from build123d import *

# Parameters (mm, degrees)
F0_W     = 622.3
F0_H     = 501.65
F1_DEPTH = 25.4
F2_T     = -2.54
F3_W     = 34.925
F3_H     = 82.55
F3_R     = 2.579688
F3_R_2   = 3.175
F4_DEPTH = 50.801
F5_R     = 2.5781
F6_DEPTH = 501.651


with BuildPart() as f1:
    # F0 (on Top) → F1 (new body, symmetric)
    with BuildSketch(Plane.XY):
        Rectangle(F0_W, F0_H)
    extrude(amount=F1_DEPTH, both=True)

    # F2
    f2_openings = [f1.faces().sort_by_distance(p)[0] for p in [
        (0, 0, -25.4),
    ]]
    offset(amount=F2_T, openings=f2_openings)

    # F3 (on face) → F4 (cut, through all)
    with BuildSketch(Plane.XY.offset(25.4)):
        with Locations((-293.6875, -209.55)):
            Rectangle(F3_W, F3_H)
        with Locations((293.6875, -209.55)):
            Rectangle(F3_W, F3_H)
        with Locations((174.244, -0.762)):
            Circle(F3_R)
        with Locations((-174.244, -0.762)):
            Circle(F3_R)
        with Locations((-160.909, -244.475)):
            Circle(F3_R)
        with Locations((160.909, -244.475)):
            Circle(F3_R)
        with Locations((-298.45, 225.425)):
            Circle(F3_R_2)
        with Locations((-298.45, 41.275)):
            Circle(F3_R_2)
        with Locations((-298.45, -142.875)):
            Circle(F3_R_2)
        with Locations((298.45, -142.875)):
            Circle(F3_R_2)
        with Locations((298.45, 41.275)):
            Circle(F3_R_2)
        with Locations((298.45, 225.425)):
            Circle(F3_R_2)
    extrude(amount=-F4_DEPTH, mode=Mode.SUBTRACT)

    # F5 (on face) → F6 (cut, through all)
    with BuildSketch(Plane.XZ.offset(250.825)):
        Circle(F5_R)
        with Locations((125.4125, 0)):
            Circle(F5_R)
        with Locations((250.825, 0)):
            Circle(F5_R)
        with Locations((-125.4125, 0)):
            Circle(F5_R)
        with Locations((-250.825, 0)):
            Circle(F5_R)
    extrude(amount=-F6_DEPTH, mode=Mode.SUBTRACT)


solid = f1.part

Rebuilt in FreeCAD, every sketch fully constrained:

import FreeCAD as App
import Part
import Sketcher
from FreeCAD import Vector
Q = App.Units.Quantity


def faces_at(feature, points):
    """Names of the faces that lie closest to the given points."""
    faces = feature.Shape.Faces
    near = lambda p: min(range(len(faces)), key=lambda i: faces[i].distToShape(Part.Vertex(*p))[0])
    return sorted({f"Face{near(p) + 1}" for p in points})

doc = App.newDocument("Part")
params = doc.addObject("Spreadsheet::Sheet", "Params")
for row, (alias, value) in enumerate([
    ("sketch1_width", "24.5 in"),
    ("sketch1_height", "19.75 in"),
    ("pad1_length", "2 in"),
    ("thickness_wall", "0.1 in"),
    ("sketch2_diameter", "0.25 in"),
    ("sketch2_diameter2", "0.203125 in"),
    ("sketch2_height", "3.25 in"),
    ("sketch2_width", "1.375 in"),
    ("sketch3_diameter", "0.203 in"),
], start=1):
    params.set(f"A{row}", alias)
    params.set(f"B{row}", "=" + value)
    params.setAlias(f"B{row}", alias)

body = doc.addObject("PartDesign::Body", "Body")

# Sketch on XY plane
sketch1 = body.newObject("Sketcher::SketchObject", "Sketch")
sketch1.AttachmentSupport = (doc.getObject("XY_Plane"), [""])
sketch1.MapMode = "FlatFace"
sketch1.addGeometry([
    Part.LineSegment(Vector(-311, 251, 0), Vector(-311, -251, 0)),
    Part.LineSegment(Vector(-311, -251, 0), Vector(311, -251, 0)),
    Part.LineSegment(Vector(311, -251, 0), Vector(311, 251, 0)),
    Part.LineSegment(Vector(311, 251, 0), Vector(-311, 251, 0)),
], False)
sketch1.addConstraint([
    Sketcher.Constraint("Coincident", 0, 2, 1, 1),
    Sketcher.Constraint("Coincident", 1, 2, 2, 1),
    Sketcher.Constraint("Coincident", 2, 2, 3, 1),
    Sketcher.Constraint("Coincident", 3, 2, 0, 1),
    Sketcher.Constraint("Vertical", 0),
    Sketcher.Constraint("Horizontal", 1),
    Sketcher.Constraint("Vertical", 2),
    Sketcher.Constraint("Horizontal", 3),
    Sketcher.Constraint("Symmetric", 0, 2, 2, 2, -1, 1),
    Sketcher.Constraint("DistanceX", 1, 1, 1, 2, Q("24.5 in")),
    Sketcher.Constraint("DistanceY", 0, 2, 0, 1, Q("19.75 in")),
])
sketch1.setExpression("Constraints[9]", "Params.sketch1_width")
sketch1.setExpression("Constraints[10]", "Params.sketch1_height")
pad1 = body.newObject("PartDesign::Pad", "Pad")
pad1.Profile = sketch1
pad1.setExpression("Length", "Params.pad1_length")
pad1.Midplane = True
doc.recompute()

thickness = body.newObject("PartDesign::Thickness", "Thickness")
thickness.Base = (pad1, faces_at(pad1, [(0, 0, -25.4)]))
thickness.setExpression("Value", "Params.thickness_wall")
thickness.Reversed = True
thickness.Join = "Arc"

# Sketch on XY plane
sketch2 = body.newObject("Sketcher::SketchObject", "Sketch001")
sketch2.AttachmentSupport = (doc.getObject("XY_Plane"), [""])
sketch2.MapMode = "FlatFace"
sketch2.AttachmentOffset = App.Placement(Vector(0, 0, 1 * 25.4), App.Rotation())
sketch2.addGeometry([
    Part.LineSegment(Vector(-311.1, -168.3, 0), Vector(-311.1, -250.8, 0)),  # 0
    Part.LineSegment(Vector(-311.1, -250.8, 0), Vector(-276.2, -250.8, 0)),  # 1
    Part.LineSegment(Vector(-276.2, -250.8, 0), Vector(-276.2, -168.3, 0)),  # 2
    Part.LineSegment(Vector(-276.2, -168.3, 0), Vector(-311.1, -168.3, 0)),  # 3
    Part.LineSegment(Vector(276.2, -168.3, 0), Vector(276.2, -250.8, 0)),  # 4
    Part.LineSegment(Vector(276.2, -250.8, 0), Vector(311.1, -250.8, 0)),  # 5
    Part.LineSegment(Vector(311.1, -250.8, 0), Vector(311.1, -168.3, 0)),  # 6
    Part.LineSegment(Vector(311.1, -168.3, 0), Vector(276.2, -168.3, 0)),  # 7
    Part.Circle(Vector(174.2, -0.8, 0), Vector(0, 0, 1), 2.6),  # 8
    Part.Circle(Vector(-174.2, -0.8, 0), Vector(0, 0, 1), 2.6),  # 9
    Part.Circle(Vector(-160.9, -244.5, 0), Vector(0, 0, 1), 2.6),  # 10
    Part.Circle(Vector(160.9, -244.5, 0), Vector(0, 0, 1), 2.6),  # 11
    Part.Circle(Vector(-298.4, 225.4, 0), Vector(0, 0, 1), 3.2),  # 12
    Part.Circle(Vector(-298.4, 41.3, 0), Vector(0, 0, 1), 3.2),  # 13
    Part.Circle(Vector(-298.4, -142.9, 0), Vector(0, 0, 1), 3.2),  # 14
    Part.Circle(Vector(298.4, -142.9, 0), Vector(0, 0, 1), 3.2),  # 15
    Part.Circle(Vector(298.4, 41.3, 0), Vector(0, 0, 1), 3.2),  # 16
    Part.Circle(Vector(298.4, 225.4, 0), Vector(0, 0, 1), 3.2),  # 17
], False)
sketch2.addConstraint([
    Sketcher.Constraint("Coincident", 0, 2, 1, 1),
    Sketcher.Constraint("Coincident", 1, 2, 2, 1),
    Sketcher.Constraint("Coincident", 2, 2, 3, 1),
    Sketcher.Constraint("Coincident", 3, 2, 0, 1),
    Sketcher.Constraint("Coincident", 4, 2, 5, 1),
    Sketcher.Constraint("Coincident", 5, 2, 6, 1),
    Sketcher.Constraint("Coincident", 6, 2, 7, 1),
    Sketcher.Constraint("Coincident", 7, 2, 4, 1),
    Sketcher.Constraint("Vertical", 0),
    Sketcher.Constraint("Horizontal", 1),
    Sketcher.Constraint("Vertical", 2),
    Sketcher.Constraint("Horizontal", 3),
    Sketcher.Constraint("Vertical", 4),
    Sketcher.Constraint("Horizontal", 5),
    Sketcher.Constraint("Vertical", 6),
    Sketcher.Constraint("Horizontal", 7),
    Sketcher.Constraint("Equal", 8, 9),
    Sketcher.Constraint("Equal", 9, 10),
    Sketcher.Constraint("Equal", 10, 11),
    Sketcher.Constraint("Equal", 12, 13),
    Sketcher.Constraint("Equal", 13, 14),
    Sketcher.Constraint("Equal", 14, 15),
    Sketcher.Constraint("Equal", 15, 16),
    Sketcher.Constraint("Equal", 16, 17),
    Sketcher.Constraint("Symmetric", 8, 3, 9, 3, -2),
    Sketcher.Constraint("Symmetric", 10, 3, 11, 3, -2),
    Sketcher.Constraint("Symmetric", 14, 3, 15, 3, -2),
    Sketcher.Constraint("Symmetric", 13, 3, 16, 3, -2),
    Sketcher.Constraint("Symmetric", 12, 3, 17, 3, -2),
    Sketcher.Constraint("Symmetric", 1, 2, 4, 2, -2),
    Sketcher.Constraint("Symmetric", 3, 2, 6, 2, -2),
    Sketcher.Constraint("Vertical", 12, 3, 13, 3),
    Sketcher.Constraint("Vertical", 13, 3, 14, 3),
    Sketcher.Constraint("Diameter", 12, Q("0.25 in")),
    Sketcher.Constraint("Diameter", 8, Q("0.203125 in")),
    Sketcher.Constraint("DistanceY", 10, 3, 14, 3, Q("4 in")),
    Sketcher.Constraint("DistanceY", 2, 2, 14, 3, Q("1 in")),
    Sketcher.Constraint("DistanceY", 0, 2, 0, 1, Q("3.25 in")),
    Sketcher.Constraint("DistanceY", 10, 3, 12, 3, Q("18.5 in")),
    Sketcher.Constraint("DistanceX", 14, 3, 15, 3, Q("23.5 in")),
    Sketcher.Constraint("DistanceX", 0, 2, 14, 3, Q("0.5 in")),
    Sketcher.Constraint("DistanceY", 0, 2, 13, 3, Q("11.5 in")),
    Sketcher.Constraint("DistanceX", 1, 1, 1, 2, Q("1.375 in")),
    Sketcher.Constraint("DistanceX", -1, 1, 8, 3, Q("6.86 in")),
    Sketcher.Constraint("DistanceY", 8, 3, -1, 1, Q("0.03 in")),
    Sketcher.Constraint("DistanceX", 10, 3, 11, 3, Q("12.67 in")),
    Sketcher.Constraint("DistanceY", 10, 3, -1, 1, Q("9.625 in")),
])
sketch2.setExpression("Constraints[33]", "Params.sketch2_diameter")
sketch2.setExpression("Constraints[34]", "Params.sketch2_diameter2")
sketch2.setExpression("Constraints[37]", "Params.sketch2_height")
sketch2.setExpression("Constraints[42]", "Params.sketch2_width")
pocket1 = body.newObject("PartDesign::Pocket", "Pocket")
pocket1.Profile = sketch2
pocket1.Type = "ThroughAll"

# Sketch on XZ plane
sketch3 = body.newObject("Sketcher::SketchObject", "Sketch002")
sketch3.AttachmentSupport = (doc.getObject("XZ_Plane"), [""])
sketch3.MapMode = "FlatFace"
sketch3.AttachmentOffset = App.Placement(Vector(0, 0, 9.875 * 25.4), App.Rotation())
sketch3.addGeometry([
    Part.Circle(Vector(0, 0, 0), Vector(0, 0, 1), 2.6),  # 0
    Part.Circle(Vector(125.4, 0, 0), Vector(0, 0, 1), 2.6),  # 1
    Part.Circle(Vector(250.8, 0, 0), Vector(0, 0, 1), 2.6),  # 2
    Part.Circle(Vector(-125.4, 0, 0), Vector(0, 0, 1), 2.6),  # 3
    Part.Circle(Vector(-250.8, 0, 0), Vector(0, 0, 1), 2.6),  # 4
], False)
sketch3.addConstraint([
    Sketcher.Constraint("Coincident", 0, 3, -1, 1),
    Sketcher.Constraint("Equal", 0, 1),
    Sketcher.Constraint("Equal", 1, 2),
    Sketcher.Constraint("Equal", 2, 3),
    Sketcher.Constraint("Equal", 3, 4),
    Sketcher.Constraint("Symmetric", 1, 3, 3, 3, -1, 1),
    Sketcher.Constraint("Symmetric", 2, 3, 4, 3, -1, 1),
    Sketcher.Constraint("PointOnObject", 1, 3, -1),
    Sketcher.Constraint("PointOnObject", 2, 3, -1),
    Sketcher.Constraint("Diameter", 0, Q("0.203 in")),
    Sketcher.Constraint("DistanceX", 4, 3, 2, 3, Q("19.75 in")),
    Sketcher.Constraint("DistanceX", -1, 1, 1, 3, Q("4.9375 in")),
])
sketch3.setExpression("Constraints[9]", "Params.sketch3_diameter")
pocket2 = body.newObject("PartDesign::Pocket", "Pocket001")
pocket2.Profile = sketch3
pocket2.Type = "ThroughAll"

doc.recompute()
